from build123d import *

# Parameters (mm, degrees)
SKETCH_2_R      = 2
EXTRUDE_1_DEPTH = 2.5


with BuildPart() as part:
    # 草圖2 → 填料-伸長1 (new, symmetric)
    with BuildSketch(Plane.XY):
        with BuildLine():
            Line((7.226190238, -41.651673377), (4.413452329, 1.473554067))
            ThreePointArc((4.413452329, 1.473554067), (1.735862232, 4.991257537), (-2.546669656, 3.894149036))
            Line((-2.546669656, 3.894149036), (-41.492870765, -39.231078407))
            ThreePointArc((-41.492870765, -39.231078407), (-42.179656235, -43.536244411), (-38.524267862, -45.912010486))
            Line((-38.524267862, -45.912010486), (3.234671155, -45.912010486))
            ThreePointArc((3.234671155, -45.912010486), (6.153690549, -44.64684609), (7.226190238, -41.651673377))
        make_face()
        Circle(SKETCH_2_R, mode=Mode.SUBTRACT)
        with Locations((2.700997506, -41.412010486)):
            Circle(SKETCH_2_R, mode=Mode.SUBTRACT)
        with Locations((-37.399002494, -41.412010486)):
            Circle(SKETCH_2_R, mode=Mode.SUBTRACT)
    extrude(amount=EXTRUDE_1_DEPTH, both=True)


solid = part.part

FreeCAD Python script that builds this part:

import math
import FreeCAD as App
import Part
import Sketcher

doc = App.newDocument("Part")
body = doc.addObject("PartDesign::Body", "Body")

sketch1 = doc.addObject("Sketcher::SketchObject", "Sketch")
body.addObject(sketch1)
sketch1.AttachmentSupport = (doc.XY_Plane, [""])
sketch1.MapMode = "FlatFace"
sketch1.addGeometry(Part.LineSegment(App.Vector(7.2, -41.7, 0), App.Vector(4.4, 1.5, 0)), False)
sketch1.addGeometry(Part.ArcOfCircle(Part.Circle(App.Vector(0.4, 1.2, 0), App.Vector(0, 0, 1), 4), math.radians(4), math.radians(138)), False)
sketch1.addGeometry(Part.LineSegment(App.Vector(-2.5, 3.9, 0), App.Vector(-41.5, -39.2, 0)), False)
sketch1.addGeometry(Part.ArcOfCircle(Part.Circle(App.Vector(-38.5, -41.9, 0), App.Vector(0, 0, 1), 4), math.radians(138), math.radians(270)), False)
sketch1.addGeometry(Part.LineSegment(App.Vector(-38.5, -45.9, 0), App.Vector(3.2, -45.9, 0)), False)
sketch1.addGeometry(Part.ArcOfCircle(Part.Circle(App.Vector(3.2, -41.9, 0), App.Vector(0, 0, 1), 4), math.radians(-90), math.radians(4)), False)
sketch1.addGeometry(Part.Circle(App.Vector(-37.4, -41.4, 0), App.Vector(0, 0, 1), 2), False)
sketch1.addGeometry(Part.Circle(App.Vector(2.7, -41.4, 0), App.Vector(0, 0, 1), 2), False)
sketch1.addGeometry(Part.Circle(App.Vector(0, 0, 0), App.Vector(0, 0, 1), 2), False)
sketch1.addConstraint(Sketcher.Constraint("Tangent", 0, 2, 1, 1))
sketch1.addConstraint(Sketcher.Constraint("Tangent", 1, 2, 2, 1))
sketch1.addConstraint(Sketcher.Constraint("Tangent", 2, 2, 3, 1))
sketch1.addConstraint(Sketcher.Constraint("Tangent", 3, 2, 4, 1))
sketch1.addConstraint(Sketcher.Constraint("Tangent", 4, 2, 5, 1))
sketch1.addConstraint(Sketcher.Constraint("Tangent", 5, 2, 0, 1))
sketch1.addConstraint(Sketcher.Constraint("Horizontal", 4))
sketch1.addConstraint(Sketcher.Constraint("Coincident", 8, 3, -1, 1))
sketch1.addConstraint(Sketcher.Constraint("Equal", 1, 3))
sketch1.addConstraint(Sketcher.Constraint("Equal", 3, 5))
sketch1.addConstraint(Sketcher.Constraint("Equal", 6, 7))
sketch1.addConstraint(Sketcher.Constraint("Equal", 7, 8))
sketch1.addConstraint(Sketcher.Constraint("Horizontal", 6, 3, 7, 3))
sketch1.addConstraint(Sketcher.Constraint("Diameter", 6, 4.0))
sketch1.addConstraint(Sketcher.Constraint("Radius", 1, 4.0))
sketch1.addConstraint(Sketcher.Constraint("DistanceY", 3, 3, 6, 3, 0.5))
sketch1.addConstraint(Sketcher.Constraint("DistanceX", 6, 3, 7, 3, 40.1))
sketch1.addConstraint(Sketcher.Constraint("DistanceX", 4, 1, 4, 2, 41.758939))
sketch1.addConstraint(Sketcher.Constraint("DistanceX", 3, 3, 1, 3, 38.946201))
sketch1.addConstraint(Sketcher.Constraint("Distance", 2, 58.108449))
sketch1.addConstraint(Sketcher.Constraint("DistanceY", 3, 3, -1, 1, 41.91201))
sketch1.addConstraint(Sketcher.Constraint("DistanceX", -1, 1, 5, 3, 3.234671))
sketch1.addConstraint(Sketcher.Constraint("DistanceX", 2, 2, 6, 3, 4.093868))
pad1 = doc.addObject("PartDesign::Pad", "Pad")
body.addObject(pad1)
pad1.Profile = sketch1
pad1.Length = 5
pad1.Midplane = True

doc.recompute()
